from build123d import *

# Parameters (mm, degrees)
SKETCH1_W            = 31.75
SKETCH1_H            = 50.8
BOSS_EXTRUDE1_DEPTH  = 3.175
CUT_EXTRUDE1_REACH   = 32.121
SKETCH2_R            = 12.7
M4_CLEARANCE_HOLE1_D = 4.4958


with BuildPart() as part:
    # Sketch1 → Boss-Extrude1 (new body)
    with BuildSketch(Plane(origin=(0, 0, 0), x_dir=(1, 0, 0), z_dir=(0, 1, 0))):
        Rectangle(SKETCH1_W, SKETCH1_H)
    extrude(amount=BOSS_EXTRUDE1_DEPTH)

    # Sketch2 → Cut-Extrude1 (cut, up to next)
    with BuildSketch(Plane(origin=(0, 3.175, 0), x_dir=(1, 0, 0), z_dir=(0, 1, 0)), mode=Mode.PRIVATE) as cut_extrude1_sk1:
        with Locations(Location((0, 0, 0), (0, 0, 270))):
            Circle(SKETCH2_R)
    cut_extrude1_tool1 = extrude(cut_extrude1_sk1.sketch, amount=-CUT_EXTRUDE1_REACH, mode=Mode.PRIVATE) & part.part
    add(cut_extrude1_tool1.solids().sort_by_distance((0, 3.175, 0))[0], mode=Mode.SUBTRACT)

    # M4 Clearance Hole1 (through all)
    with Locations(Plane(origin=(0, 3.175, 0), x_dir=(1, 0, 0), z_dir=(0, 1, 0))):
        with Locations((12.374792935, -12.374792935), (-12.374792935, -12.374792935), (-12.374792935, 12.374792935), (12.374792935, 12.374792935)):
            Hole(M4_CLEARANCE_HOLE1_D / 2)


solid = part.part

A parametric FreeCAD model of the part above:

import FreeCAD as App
import Part
import Sketcher
from FreeCAD import Vector
Q = App.Units.Quantity


def add_polygon(sketch, points):
    """Adds a closed chain of lines whose ends are joined by coincident constraints."""
    first, n = sketch.GeometryCount, len(points)
    for a, b in zip(points, points[1:] + points[:1]):
        sketch.addGeometry(Part.LineSegment(App.Vector(*a, 0), App.Vector(*b, 0)), False)
    for i in range(n):
        sketch.addConstraint(Sketcher.Constraint("Coincident", first + i, 2, first + (i + 1) % n, 1))

doc = App.newDocument("Part")
body = doc.addObject("PartDesign::Body", "Body")

# Sketch on XZ plane
sketch1 = body.newObject("Sketcher::SketchObject", "Sketch")
sketch1.AttachmentSupport = (doc.getObject("XZ_Plane"), [""])
sketch1.MapMode = "FlatFace"
add_polygon(sketch1, [(-16, -25), (-16, 25), (16, 25), (16, -25)])  # lines 0-3
sketch1.addConstraint([
    Sketcher.Constraint("Vertical", 0),
    Sketcher.Constraint("Horizontal", 1),
    Sketcher.Constraint("Vertical", 2),
    Sketcher.Constraint("Horizontal", 3),
    Sketcher.Constraint("Symmetric", 0, 2, 2, 2, -1, 1),
    Sketcher.Constraint("DistanceY", 0, 1, 0, 2, Q("2 in")),
    Sketcher.Constraint("DistanceX", 1, 1, 1, 2, Q("1.25 in")),
])
pad1 = body.newObject("PartDesign::Pad", "Pad")
pad1.Profile = sketch1
pad1.Length = Q("0.125 in")
pad1.Reversed = True

# Sketch on XZ plane
sketch2 = body.newObject("Sketcher::SketchObject", "Sketch001")
sketch2.AttachmentSupport = (doc.getObject("XZ_Plane"), [""])
sketch2.MapMode = "FlatFace"
sketch2.AttachmentOffset = App.Placement(Vector(0, 0, -0.125 * 25.4), App.Rotation())
sketch2.addGeometry(Part.Circle(Vector(0, 0, 0), Vector(0, 0, 1), 13), False)
sketch2.addConstraint([
    Sketcher.Constraint("Coincident", 0, 3, -1, 1),
    Sketcher.Constraint("Diameter", 0, Q("1 in")),
])
pocket1 = body.newObject("PartDesign::Pocket", "Pocket")
pocket1.Profile = sketch2
pocket1.Type = "UpToFirst"
pocket1.Reversed = True

# Sketch on XZ plane
sketch3 = body.newObject("Sketcher::SketchObject", "Sketch002")
sketch3.AttachmentSupport = (doc.getObject("XZ_Plane"), [""])
sketch3.MapMode = "FlatFace"
sketch3.AttachmentOffset = App.Placement(Vector(0, 0, -0.125 * 25.4), App.Rotation())
sketch3.addGeometry([
    Part.Circle(Vector(12.4, 12.4, 0), Vector(0, 0, 1), 2.2),
    Part.Circle(Vector(-12.4, 12.4, 0), Vector(0, 0, 1), 2.2),
    Part.Circle(Vector(-12.4, -12.4, 0), Vector(0, 0, 1), 2.2),
    Part.Circle(Vector(12.4, -12.4, 0), Vector(0, 0, 1), 2.2),
], False)
sketch3.addConstraint([
    Sketcher.Constraint("Equal", 0, 1),
    Sketcher.Constraint("Equal", 1, 2),
    Sketcher.Constraint("Equal", 2, 3),
    Sketcher.Constraint("Symmetric", 0, 3, 2, 3, -1, 1),
    Sketcher.Constraint("Symmetric", 1, 3, 3, 3, -1, 1),
    Sketcher.Constraint("Symmetric", 0, 3, 1, 3, -2),
    Sketcher.Constraint("Diameter", 0, Q("0.177 in")),
    Sketcher.Constraint("DistanceX", -1, 1, 0, 3, 12.374793),
    Sketcher.Constraint("DistanceY", -1, 1, 0, 3, 12.374793),
])
doc.recompute()
hole = body.newObject("PartDesign::Hole", "Hole")
hole.Profile = sketch3
hole.ThreadType = "None"
hole.Diameter = Q("0.177 in")
hole.DepthType = "ThroughAll"
hole.Reversed = True

doc.recompute()
